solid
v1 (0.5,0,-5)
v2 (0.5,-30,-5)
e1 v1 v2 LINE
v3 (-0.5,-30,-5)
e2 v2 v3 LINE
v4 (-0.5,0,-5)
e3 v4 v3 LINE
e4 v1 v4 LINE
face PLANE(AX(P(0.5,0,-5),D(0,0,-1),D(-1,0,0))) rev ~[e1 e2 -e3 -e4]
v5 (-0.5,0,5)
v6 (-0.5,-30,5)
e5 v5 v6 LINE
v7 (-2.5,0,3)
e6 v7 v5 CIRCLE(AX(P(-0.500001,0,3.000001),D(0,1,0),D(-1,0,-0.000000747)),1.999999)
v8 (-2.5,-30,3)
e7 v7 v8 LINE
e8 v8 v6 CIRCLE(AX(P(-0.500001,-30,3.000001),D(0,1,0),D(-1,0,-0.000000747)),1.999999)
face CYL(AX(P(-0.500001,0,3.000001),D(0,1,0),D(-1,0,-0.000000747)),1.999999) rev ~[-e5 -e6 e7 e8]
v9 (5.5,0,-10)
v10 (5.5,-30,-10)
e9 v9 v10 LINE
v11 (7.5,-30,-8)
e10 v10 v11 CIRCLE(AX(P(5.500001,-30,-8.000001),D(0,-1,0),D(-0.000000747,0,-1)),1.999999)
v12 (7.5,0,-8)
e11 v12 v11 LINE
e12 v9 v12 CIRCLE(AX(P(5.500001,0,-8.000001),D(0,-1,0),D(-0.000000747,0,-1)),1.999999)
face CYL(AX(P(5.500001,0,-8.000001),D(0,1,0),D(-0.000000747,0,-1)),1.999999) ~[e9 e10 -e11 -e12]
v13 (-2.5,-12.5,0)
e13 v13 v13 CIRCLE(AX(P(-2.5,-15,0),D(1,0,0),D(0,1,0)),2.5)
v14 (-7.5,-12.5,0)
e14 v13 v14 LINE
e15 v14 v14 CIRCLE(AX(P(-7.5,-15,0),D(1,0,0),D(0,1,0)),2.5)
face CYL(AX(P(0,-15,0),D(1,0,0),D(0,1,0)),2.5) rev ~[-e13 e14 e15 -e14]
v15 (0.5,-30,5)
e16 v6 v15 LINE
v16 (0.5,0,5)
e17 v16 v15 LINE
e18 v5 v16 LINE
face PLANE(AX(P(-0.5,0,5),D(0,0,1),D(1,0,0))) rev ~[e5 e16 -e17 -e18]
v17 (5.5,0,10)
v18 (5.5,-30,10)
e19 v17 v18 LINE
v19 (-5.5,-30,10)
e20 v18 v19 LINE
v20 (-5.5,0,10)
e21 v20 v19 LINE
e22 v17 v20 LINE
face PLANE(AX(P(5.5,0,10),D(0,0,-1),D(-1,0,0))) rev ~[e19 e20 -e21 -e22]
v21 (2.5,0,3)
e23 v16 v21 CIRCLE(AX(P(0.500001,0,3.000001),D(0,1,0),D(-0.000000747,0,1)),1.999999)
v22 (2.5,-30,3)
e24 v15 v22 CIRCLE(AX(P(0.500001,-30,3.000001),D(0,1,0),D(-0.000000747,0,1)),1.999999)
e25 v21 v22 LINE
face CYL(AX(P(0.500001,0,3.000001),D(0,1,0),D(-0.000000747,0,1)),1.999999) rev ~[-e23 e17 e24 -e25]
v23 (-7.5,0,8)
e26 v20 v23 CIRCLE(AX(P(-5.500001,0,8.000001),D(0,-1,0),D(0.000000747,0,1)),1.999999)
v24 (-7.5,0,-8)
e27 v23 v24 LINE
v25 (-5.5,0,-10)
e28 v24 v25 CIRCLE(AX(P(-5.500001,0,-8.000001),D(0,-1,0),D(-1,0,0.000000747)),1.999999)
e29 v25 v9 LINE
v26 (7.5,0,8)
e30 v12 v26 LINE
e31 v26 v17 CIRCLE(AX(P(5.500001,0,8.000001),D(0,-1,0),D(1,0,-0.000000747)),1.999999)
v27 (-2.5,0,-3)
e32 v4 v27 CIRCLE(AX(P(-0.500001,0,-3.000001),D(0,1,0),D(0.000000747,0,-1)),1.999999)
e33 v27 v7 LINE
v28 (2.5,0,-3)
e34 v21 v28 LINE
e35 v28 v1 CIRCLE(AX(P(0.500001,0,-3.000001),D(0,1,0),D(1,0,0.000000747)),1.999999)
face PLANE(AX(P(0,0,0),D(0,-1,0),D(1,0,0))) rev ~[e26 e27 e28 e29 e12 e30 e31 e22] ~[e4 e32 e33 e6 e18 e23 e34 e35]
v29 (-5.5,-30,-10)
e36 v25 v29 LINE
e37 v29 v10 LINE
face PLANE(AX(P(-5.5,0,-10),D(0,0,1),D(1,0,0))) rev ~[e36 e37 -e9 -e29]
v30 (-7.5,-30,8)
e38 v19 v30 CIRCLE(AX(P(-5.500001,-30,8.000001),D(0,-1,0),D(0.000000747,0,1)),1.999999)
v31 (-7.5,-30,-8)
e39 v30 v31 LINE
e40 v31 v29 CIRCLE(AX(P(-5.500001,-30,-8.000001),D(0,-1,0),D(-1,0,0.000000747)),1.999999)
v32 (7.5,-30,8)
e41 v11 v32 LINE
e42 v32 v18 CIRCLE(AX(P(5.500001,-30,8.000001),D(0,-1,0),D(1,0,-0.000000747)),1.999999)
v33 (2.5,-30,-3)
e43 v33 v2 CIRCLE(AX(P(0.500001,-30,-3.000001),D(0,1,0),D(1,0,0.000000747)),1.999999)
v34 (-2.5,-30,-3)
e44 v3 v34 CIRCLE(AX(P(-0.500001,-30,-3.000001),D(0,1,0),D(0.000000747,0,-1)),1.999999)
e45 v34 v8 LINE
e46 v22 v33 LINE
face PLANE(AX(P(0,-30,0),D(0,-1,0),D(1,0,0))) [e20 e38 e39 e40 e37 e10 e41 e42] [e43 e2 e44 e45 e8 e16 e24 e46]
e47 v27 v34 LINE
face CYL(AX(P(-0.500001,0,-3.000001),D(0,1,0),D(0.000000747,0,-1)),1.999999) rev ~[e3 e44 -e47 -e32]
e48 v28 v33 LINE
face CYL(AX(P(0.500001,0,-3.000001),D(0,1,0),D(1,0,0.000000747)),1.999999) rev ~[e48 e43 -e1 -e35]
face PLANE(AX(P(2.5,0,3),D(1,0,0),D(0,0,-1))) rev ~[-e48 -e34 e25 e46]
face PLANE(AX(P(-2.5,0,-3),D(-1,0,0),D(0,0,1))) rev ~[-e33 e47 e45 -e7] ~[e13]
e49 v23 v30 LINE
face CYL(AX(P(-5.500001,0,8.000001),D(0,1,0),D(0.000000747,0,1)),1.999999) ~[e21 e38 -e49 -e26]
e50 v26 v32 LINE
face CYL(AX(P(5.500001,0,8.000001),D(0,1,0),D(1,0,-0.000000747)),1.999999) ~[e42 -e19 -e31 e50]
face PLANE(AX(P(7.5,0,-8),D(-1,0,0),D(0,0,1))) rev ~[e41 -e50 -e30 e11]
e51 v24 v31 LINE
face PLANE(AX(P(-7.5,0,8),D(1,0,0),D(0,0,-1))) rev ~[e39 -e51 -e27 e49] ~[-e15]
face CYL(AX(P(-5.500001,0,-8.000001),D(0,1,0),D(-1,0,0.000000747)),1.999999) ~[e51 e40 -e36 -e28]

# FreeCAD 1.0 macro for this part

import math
import FreeCAD as App
import Part
import Sketcher

V = App.Vector

doc = App.newDocument("Part")
body = doc.addObject("PartDesign::Body", "Body")

sketch1 = body.newObject("Sketcher::SketchObject", "Sketch")
sketch1.AttachmentSupport = (doc.getObject("XZ_Plane"), [""])
sketch1.MapMode = "FlatFace"
sketch1.addGeometry([
    Part.ArcOfCircle(Part.Circle(V(5.5, 8, 0), V(0, 0, 1), 2), math.radians(0), math.radians(90)),
    Part.LineSegment(V(5.5, 10, 0), V(-5.5, 10, 0)),
    Part.ArcOfCircle(Part.Circle(V(-5.5, 8, 0), V(0, 0, 1), 2), math.radians(90), math.radians(180)),
    Part.LineSegment(V(-7.5, 8, 0), V(-7.5, -8, 0)),
    Part.ArcOfCircle(Part.Circle(V(-5.5, -8, 0), V(0, 0, 1), 2), math.radians(180), math.radians(270)),
    Part.LineSegment(V(-5.5, -10, 0), V(5.5, -10, 0)),
    Part.ArcOfCircle(Part.Circle(V(5.5, -8, 0), V(0, 0, 1), 2), math.radians(-90), math.radians(0)),
    Part.LineSegment(V(7.5, -8, 0), V(7.5, 8, 0)),
    Part.ArcOfCircle(Part.Circle(V(-0.5, 3, 0), V(0, 0, 1), 2), math.radians(90), math.radians(180)),
    Part.LineSegment(V(-0.5, 5, 0), V(0.5, 5, 0)),
    Part.ArcOfCircle(Part.Circle(V(0.5, 3, 0), V(0, 0, 1), 2), math.radians(0), math.radians(90)),
    Part.LineSegment(V(2.5, 3, 0), V(2.5, -3, 0)),
    Part.ArcOfCircle(Part.Circle(V(0.5, -3, 0), V(0, 0, 1), 2), math.radians(-90), math.radians(0)),
    Part.LineSegment(V(0.5, -5, 0), V(-0.5, -5, 0)),
    Part.ArcOfCircle(Part.Circle(V(-0.5, -3, 0), V(0, 0, 1), 2), math.radians(180), math.radians(270)),
    Part.LineSegment(V(-2.5, -3, 0), V(-2.5, 3, 0)),
], False)
sketch1.addConstraint([
    Sketcher.Constraint("Tangent", 0, 2, 1, 1),
    Sketcher.Constraint("Tangent", 1, 2, 2, 1),
    Sketcher.Constraint("Tangent", 2, 2, 3, 1),
    Sketcher.Constraint("Tangent", 3, 2, 4, 1),
    Sketcher.Constraint("Tangent", 4, 2, 5, 1),
    Sketcher.Constraint("Tangent", 5, 2, 6, 1),
    Sketcher.Constraint("Tangent", 6, 2, 7, 1),
    Sketcher.Constraint("Tangent", 7, 2, 0, 1),
    Sketcher.Constraint("Tangent", 8, 1, 9, 1),
    Sketcher.Constraint("Tangent", 9, 2, 10, 2),
    Sketcher.Constraint("Tangent", 10, 1, 11, 1),
    Sketcher.Constraint("Tangent", 11, 2, 12, 2),
    Sketcher.Constraint("Tangent", 12, 1, 13, 1),
    Sketcher.Constraint("Tangent", 13, 2, 14, 2),
    Sketcher.Constraint("Tangent", 14, 1, 15, 1),
    Sketcher.Constraint("Tangent", 15, 2, 8, 2),
    Sketcher.Constraint("Horizontal", 1),
    Sketcher.Constraint("Vertical", 3),
    Sketcher.Constraint("Horizontal", 5),
    Sketcher.Constraint("Vertical", 7),
    Sketcher.Constraint("Horizontal", 9),
    Sketcher.Constraint("Vertical", 11),
    Sketcher.Constraint("Horizontal", 13),
    Sketcher.Constraint("Vertical", 15),
    Sketcher.Constraint("Equal", 0, 2),
    Sketcher.Constraint("Equal", 2, 4),
    Sketcher.Constraint("Equal", 4, 6),
    Sketcher.Constraint("Equal", 6, 8),
    Sketcher.Constraint("Equal", 8, 10),
    Sketcher.Constraint("Equal", 10, 12),
    Sketcher.Constraint("Equal", 12, 14),
    Sketcher.Constraint("Symmetric", 0, 3, 4, 3, -1, 1),
    Sketcher.Constraint("Symmetric", 8, 3, 12, 3, -1, 1),
    Sketcher.Constraint("Radius", 0, 1.999999),
    Sketcher.Constraint("DistanceX", 1, 2, 1, 1, 11.0),
    Sketcher.Constraint("DistanceX", 9, 1, 9, 2, 1.0),
    Sketcher.Constraint("DistanceY", 3, 2, 3, 1, 16.0),
    Sketcher.Constraint("DistanceY", 11, 2, 11, 1, 6.0),
])
pad1 = body.newObject("PartDesign::Pad", "Pad")
pad1.Profile = sketch1
pad1.Length = 30

sketch2 = body.newObject("Sketcher::SketchObject", "Sketch001")
sketch2.AttachmentSupport = (doc.getObject("YZ_Plane"), [""])
sketch2.MapMode = "FlatFace"
sketch2.addGeometry(Part.Circle(V(-15, 0, 0), V(0, 0, 1), 2.5), False)
sketch2.addConstraint([
    Sketcher.Constraint("PointOnObject", 0, 3, -1),
    Sketcher.Constraint("Diameter", 0, 5.0),
    Sketcher.Constraint("DistanceX", 0, 3, -1, 1, 15.0),
])
pocket1 = body.newObject("PartDesign::Pocket", "Pocket")
pocket1.Profile = sketch2
pocket1.Length = 30

doc.recompute()
